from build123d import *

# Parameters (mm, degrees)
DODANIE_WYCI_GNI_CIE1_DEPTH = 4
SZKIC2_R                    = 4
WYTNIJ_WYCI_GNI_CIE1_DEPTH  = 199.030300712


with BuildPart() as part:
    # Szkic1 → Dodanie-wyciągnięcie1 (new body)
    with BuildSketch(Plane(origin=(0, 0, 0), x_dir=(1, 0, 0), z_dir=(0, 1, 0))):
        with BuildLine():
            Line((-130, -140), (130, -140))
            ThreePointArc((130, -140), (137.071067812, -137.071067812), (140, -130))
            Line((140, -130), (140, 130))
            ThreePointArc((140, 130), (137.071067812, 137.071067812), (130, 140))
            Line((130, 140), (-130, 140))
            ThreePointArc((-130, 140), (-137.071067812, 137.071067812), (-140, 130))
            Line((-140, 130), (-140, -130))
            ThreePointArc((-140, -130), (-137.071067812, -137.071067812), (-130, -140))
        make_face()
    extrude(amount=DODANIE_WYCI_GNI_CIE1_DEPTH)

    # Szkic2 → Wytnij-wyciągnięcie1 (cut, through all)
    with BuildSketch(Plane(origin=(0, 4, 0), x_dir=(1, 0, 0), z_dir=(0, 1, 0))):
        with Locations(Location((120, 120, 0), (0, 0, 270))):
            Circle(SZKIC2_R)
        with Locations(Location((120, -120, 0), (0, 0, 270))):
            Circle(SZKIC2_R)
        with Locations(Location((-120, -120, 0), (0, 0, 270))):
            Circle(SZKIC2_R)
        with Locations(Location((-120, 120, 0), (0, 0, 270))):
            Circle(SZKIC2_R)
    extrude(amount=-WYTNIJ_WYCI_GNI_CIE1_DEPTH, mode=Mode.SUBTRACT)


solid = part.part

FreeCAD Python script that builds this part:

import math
import FreeCAD as App
import Part
import Sketcher
from FreeCAD import Vector

doc = App.newDocument("Part")
body = doc.addObject("PartDesign::Body", "Body")

sketch1 = body.newObject("Sketcher::SketchObject", "Sketch")
sketch1.AttachmentSupport = (doc.getObject("XZ_Plane"), [""])
sketch1.MapMode = "FlatFace"
sketch1.addGeometry([
    Part.LineSegment(Vector(-130, 140, 0), Vector(130, 140, 0)),
    Part.ArcOfCircle(Part.Circle(Vector(130, 130, 0), Vector(0, 0, 1), 10), math.radians(0), math.radians(90)),
    Part.LineSegment(Vector(140, 130, 0), Vector(140, -130, 0)),
    Part.ArcOfCircle(Part.Circle(Vector(130, -130, 0), Vector(0, 0, 1), 10), math.radians(-90), math.radians(0)),
    Part.LineSegment(Vector(130, -140, 0), Vector(-130, -140, 0)),
    Part.ArcOfCircle(Part.Circle(Vector(-130, -130, 0), Vector(0, 0, 1), 10), math.radians(180), math.radians(270)),
    Part.LineSegment(Vector(-140, -130, 0), Vector(-140, 130, 0)),
    Part.ArcOfCircle(Part.Circle(Vector(-130, 130, 0), Vector(0, 0, 1), 10), math.radians(90), math.radians(180)),
], False)
sketch1.addConstraint([
    Sketcher.Constraint("Tangent", 0, 2, 1, 2),
    Sketcher.Constraint("Tangent", 1, 1, 2, 1),
    Sketcher.Constraint("Tangent", 2, 2, 3, 2),
    Sketcher.Constraint("Tangent", 3, 1, 4, 1),
    Sketcher.Constraint("Tangent", 4, 2, 5, 2),
    Sketcher.Constraint("Tangent", 5, 1, 6, 1),
    Sketcher.Constraint("Tangent", 6, 2, 7, 2),
    Sketcher.Constraint("Tangent", 7, 1, 0, 1),
    Sketcher.Constraint("Horizontal", 0),
    Sketcher.Constraint("Vertical", 2),
    Sketcher.Constraint("Horizontal", 4),
    Sketcher.Constraint("Vertical", 6),
    Sketcher.Constraint("Equal", 1, 3),
    Sketcher.Constraint("Equal", 3, 5),
    Sketcher.Constraint("Equal", 5, 7),
    Sketcher.Constraint("Symmetric", 1, 3, 5, 3, -1, 1),
    Sketcher.Constraint("Equal", 4, 2),
    Sketcher.Constraint("Radius", 1, 10.0),
    Sketcher.Constraint("DistanceX", 0, 1, 0, 2, 260.0),
])
pad1 = body.newObject("PartDesign::Pad", "Pad")
pad1.Profile = sketch1
pad1.Length = 4
pad1.Reversed = True

sketch2 = body.newObject("Sketcher::SketchObject", "Sketch001")
sketch2.AttachmentSupport = (doc.getObject("XZ_Plane"), [""])
sketch2.MapMode = "FlatFace"
sketch2.AttachmentOffset = App.Placement(Vector(0, 0, -4), App.Rotation())
sketch2.addGeometry([
    Part.Circle(Vector(120, -120, 0), Vector(0, 0, 1), 4),
    Part.Circle(Vector(120, 120, 0), Vector(0, 0, 1), 4),
    Part.Circle(Vector(-120, 120, 0), Vector(0, 0, 1), 4),
    Part.Circle(Vector(-120, -120, 0), Vector(0, 0, 1), 4),
], False)
sketch2.addConstraint([
    Sketcher.Constraint("Equal", 0, 1),
    Sketcher.Constraint("Equal", 1, 2),
    Sketcher.Constraint("Equal", 2, 3),
    Sketcher.Constraint("Symmetric", 0, 3, 2, 3, -1, 1),
    Sketcher.Constraint("Symmetric", 1, 3, 3, 3, -1, 1),
    Sketcher.Constraint("Symmetric", 1, 3, 2, 3, -2),
    Sketcher.Constraint("Diameter", 0, 8.0),
    Sketcher.Constraint("DistanceX", -1, 1, 0, 3, 120.0),
    Sketcher.Constraint("DistanceY", 0, 3, -1, 1, 120.0),
])
pocket1 = body.newObject("PartDesign::Pocket", "Pocket")
pocket1.Profile = sketch2
pocket1.Type = "ThroughAll"
pocket1.Reversed = True

doc.recompute()
